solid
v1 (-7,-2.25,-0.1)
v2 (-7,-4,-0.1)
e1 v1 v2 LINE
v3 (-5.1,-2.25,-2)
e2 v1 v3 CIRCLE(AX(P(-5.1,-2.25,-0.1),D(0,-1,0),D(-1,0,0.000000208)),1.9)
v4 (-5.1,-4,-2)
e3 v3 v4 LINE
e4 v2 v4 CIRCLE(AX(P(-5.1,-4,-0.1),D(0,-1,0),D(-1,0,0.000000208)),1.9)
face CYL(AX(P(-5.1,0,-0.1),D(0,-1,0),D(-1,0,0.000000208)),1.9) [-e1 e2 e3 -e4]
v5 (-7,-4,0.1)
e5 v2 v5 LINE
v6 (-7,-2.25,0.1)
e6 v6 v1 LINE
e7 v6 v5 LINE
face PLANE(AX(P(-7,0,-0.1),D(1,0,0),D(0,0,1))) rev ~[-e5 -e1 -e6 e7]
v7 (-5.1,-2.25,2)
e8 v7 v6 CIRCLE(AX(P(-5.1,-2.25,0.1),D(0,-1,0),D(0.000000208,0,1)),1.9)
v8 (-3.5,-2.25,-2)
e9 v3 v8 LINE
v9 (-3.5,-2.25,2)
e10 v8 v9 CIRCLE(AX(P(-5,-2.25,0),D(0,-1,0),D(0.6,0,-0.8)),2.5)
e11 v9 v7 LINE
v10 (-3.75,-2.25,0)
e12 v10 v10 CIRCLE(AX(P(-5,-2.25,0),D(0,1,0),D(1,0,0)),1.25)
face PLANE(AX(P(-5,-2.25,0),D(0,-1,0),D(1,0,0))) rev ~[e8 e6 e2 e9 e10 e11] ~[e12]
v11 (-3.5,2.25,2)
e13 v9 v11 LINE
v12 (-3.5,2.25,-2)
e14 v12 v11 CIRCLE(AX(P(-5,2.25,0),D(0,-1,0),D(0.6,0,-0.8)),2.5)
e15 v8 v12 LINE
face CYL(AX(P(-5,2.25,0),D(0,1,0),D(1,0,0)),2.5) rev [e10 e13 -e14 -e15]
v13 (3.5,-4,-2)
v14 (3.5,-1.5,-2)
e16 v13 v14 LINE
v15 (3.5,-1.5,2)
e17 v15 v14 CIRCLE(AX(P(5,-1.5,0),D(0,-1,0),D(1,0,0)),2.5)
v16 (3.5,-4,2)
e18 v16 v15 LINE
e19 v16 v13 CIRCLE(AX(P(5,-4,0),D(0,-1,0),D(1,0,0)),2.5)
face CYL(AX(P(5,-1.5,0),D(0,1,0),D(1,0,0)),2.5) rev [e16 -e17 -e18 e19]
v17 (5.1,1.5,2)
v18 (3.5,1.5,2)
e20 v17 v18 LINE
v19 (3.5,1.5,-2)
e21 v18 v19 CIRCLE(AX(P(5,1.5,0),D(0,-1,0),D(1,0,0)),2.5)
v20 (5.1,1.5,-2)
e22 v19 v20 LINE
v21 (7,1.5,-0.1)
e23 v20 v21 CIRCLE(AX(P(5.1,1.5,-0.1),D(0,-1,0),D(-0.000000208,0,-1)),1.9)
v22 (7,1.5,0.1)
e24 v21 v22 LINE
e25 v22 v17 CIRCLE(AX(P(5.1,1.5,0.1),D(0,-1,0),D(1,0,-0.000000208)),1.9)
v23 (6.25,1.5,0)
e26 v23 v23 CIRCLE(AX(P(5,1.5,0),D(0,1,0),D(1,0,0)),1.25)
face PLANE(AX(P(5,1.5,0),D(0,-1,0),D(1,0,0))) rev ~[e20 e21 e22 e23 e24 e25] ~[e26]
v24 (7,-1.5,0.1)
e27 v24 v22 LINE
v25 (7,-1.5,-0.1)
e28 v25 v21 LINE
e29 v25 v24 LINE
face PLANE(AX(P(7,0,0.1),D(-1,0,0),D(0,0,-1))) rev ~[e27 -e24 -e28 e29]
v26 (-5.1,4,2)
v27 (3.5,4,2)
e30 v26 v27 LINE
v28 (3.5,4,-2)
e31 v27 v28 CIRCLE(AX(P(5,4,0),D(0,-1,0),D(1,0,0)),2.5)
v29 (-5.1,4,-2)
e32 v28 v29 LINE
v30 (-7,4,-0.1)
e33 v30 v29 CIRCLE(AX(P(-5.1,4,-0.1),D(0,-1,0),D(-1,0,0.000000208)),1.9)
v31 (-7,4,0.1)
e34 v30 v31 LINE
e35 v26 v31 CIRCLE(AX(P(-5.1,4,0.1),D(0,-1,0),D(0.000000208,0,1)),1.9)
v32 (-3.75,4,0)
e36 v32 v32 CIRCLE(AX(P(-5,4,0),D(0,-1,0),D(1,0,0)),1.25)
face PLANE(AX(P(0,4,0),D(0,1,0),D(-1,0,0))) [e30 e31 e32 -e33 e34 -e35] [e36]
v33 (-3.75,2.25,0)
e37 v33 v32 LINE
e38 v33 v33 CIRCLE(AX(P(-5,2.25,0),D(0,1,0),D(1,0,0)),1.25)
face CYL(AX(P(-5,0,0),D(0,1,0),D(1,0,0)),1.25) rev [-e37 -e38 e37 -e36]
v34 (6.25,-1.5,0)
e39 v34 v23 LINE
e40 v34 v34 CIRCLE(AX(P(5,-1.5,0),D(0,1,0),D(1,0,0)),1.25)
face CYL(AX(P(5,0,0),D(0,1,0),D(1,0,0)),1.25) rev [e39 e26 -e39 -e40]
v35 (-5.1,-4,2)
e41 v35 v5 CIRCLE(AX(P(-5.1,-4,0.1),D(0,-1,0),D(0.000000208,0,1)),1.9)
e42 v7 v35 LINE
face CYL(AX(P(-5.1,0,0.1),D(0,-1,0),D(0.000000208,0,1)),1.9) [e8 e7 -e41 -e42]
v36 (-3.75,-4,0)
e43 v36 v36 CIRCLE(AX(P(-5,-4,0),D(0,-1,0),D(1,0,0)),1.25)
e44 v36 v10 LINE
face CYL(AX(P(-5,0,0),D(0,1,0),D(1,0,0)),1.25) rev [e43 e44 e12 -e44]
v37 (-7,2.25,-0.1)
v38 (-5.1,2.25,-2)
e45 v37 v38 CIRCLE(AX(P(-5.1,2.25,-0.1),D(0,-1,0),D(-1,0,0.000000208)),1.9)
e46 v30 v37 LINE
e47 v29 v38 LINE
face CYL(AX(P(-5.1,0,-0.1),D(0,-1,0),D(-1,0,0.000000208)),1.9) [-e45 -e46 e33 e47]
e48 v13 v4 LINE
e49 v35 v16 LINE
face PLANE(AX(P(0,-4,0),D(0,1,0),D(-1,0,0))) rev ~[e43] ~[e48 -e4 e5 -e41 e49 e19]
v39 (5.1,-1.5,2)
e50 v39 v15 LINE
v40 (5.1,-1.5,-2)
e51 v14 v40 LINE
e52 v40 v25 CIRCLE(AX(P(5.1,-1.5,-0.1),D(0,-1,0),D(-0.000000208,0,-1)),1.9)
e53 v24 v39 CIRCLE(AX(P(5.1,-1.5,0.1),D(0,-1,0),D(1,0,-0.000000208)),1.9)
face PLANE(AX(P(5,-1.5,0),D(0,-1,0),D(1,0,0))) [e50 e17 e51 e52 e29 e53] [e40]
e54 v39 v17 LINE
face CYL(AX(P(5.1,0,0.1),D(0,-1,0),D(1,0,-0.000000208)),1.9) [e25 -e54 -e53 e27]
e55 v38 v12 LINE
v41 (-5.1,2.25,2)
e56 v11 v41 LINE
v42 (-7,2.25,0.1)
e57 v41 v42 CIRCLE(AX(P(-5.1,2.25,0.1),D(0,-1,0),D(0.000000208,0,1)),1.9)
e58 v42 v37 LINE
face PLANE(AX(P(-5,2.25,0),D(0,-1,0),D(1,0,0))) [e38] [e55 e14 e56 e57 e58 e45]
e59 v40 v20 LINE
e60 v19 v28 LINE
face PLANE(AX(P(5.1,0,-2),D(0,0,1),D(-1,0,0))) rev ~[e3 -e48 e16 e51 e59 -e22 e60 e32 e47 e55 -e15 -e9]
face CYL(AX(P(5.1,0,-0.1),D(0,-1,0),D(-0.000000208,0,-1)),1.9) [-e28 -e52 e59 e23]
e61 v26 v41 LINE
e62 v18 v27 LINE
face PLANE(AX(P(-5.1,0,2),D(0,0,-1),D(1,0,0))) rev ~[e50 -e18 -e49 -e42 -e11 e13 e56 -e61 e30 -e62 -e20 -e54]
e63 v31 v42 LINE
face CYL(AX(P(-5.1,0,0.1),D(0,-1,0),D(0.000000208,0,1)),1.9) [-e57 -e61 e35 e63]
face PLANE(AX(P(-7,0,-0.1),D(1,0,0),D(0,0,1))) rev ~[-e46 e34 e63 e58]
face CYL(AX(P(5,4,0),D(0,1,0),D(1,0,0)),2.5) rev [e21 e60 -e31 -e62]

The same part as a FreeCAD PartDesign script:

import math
import FreeCAD as App
import Part
import Sketcher
from FreeCAD import Vector

doc = App.newDocument("Part")
body = doc.addObject("PartDesign::Body", "Body")

# Sketch on XY plane
sketch1 = body.newObject("Sketcher::SketchObject", "Sketch")
sketch1.AttachmentSupport = (doc.getObject("XY_Plane"), [""])
sketch1.MapMode = "FlatFace"
sketch1.addGeometry(Part.Circle(Vector(0, 0, 0), Vector(0, 0, 1), 2.5), False)
sketch1.addConstraint(Sketcher.Constraint("Coincident", 0, 3, -1, 1))
sketch1.addConstraint(Sketcher.Constraint("Diameter", 0, 5.0))
pad1 = body.newObject("PartDesign::Pad", "Pad")
pad1.Profile = sketch1
pad1.Length = 2.5
body2 = doc.addObject("PartDesign::Body", "Body001")
doc.recompute()

body.Placement = App.Placement(Vector(0, 0, 0), App.Rotation(Vector(1, 0, 0), 90))
boolean = body2.newObject("PartDesign::Boolean", "Boolean")
boolean.Type = "Fuse"
boolean.addObjects([body])
body3 = doc.addObject("PartDesign::Body", "Body002")
doc.recompute()

body2.Placement = App.Placement(Vector(5, 4, 0), App.Rotation(Vector(0, 0, 1), 0))
boolean2 = body3.newObject("PartDesign::Boolean", "Boolean001")
boolean2.Type = "Fuse"
boolean2.addObjects([body2])
body4 = doc.addObject("PartDesign::Body", "Body003")

# Sketch on XY plane
sketch2 = body4.newObject("Sketcher::SketchObject", "Sketch001")
sketch2.AttachmentSupport = (doc.getObject("XY_Plane003"), [""])
sketch2.MapMode = "FlatFace"
sketch2.addGeometry(Part.Circle(Vector(0, 0, 0), Vector(0, 0, 1), 2.5), False)
sketch2.addConstraint(Sketcher.Constraint("Coincident", 0, 3, -1, 1))
sketch2.addConstraint(Sketcher.Constraint("Diameter", 0, 5.0))
pad2 = body4.newObject("PartDesign::Pad", "Pad001")
pad2.Profile = sketch2
pad2.Length = 2.5
body5 = doc.addObject("PartDesign::Body", "Body004")
doc.recompute()

body4.Placement = App.Placement(Vector(0, 0, 0), App.Rotation(Vector(1, 0, 0), 90))
boolean3 = body5.newObject("PartDesign::Boolean", "Boolean002")
boolean3.Type = "Fuse"
boolean3.addObjects([body4])
body6 = doc.addObject("PartDesign::Body", "Body005")
doc.recompute()

body5.Placement = App.Placement(Vector(5, -1.5, 0), App.Rotation(Vector(0, 0, 1), 0))
boolean4 = body6.newObject("PartDesign::Boolean", "Boolean003")
boolean4.Type = "Fuse"
boolean4.addObjects([body5])
body7 = doc.addObject("PartDesign::Body", "Body006")

# Sketch on XY plane
sketch3 = body7.newObject("Sketcher::SketchObject", "Sketch002")
sketch3.AttachmentSupport = (doc.getObject("XY_Plane006"), [""])
sketch3.MapMode = "FlatFace"
sketch3.addGeometry(Part.Circle(Vector(0, 0, 0), Vector(0, 0, 1), 2.5), False)
sketch3.addConstraint(Sketcher.Constraint("Coincident", 0, 3, -1, 1))
sketch3.addConstraint(Sketcher.Constraint("Diameter", 0, 5.0))
pad3 = body7.newObject("PartDesign::Pad", "Pad002")
pad3.Profile = sketch3
pad3.Length = 4.5
body8 = doc.addObject("PartDesign::Body", "Body007")
doc.recompute()

body7.Placement = App.Placement(Vector(0, 0, 0), App.Rotation(Vector(1, 0, 0), 90))
boolean5 = body8.newObject("PartDesign::Boolean", "Boolean004")
boolean5.Type = "Fuse"
boolean5.addObjects([body7])
body9 = doc.addObject("PartDesign::Body", "Body008")
body9.AllowCompound = True
doc.recompute()

body8.Placement = App.Placement(Vector(-5, 2.25, 0), App.Rotation(Vector(0, 0, 1), 0))
boolean6 = body9.newObject("PartDesign::Boolean", "Boolean005")
boolean6.Type = "Fuse"
boolean6.addObjects([body8])
doc.recompute()

boolean7 = body9.newObject("PartDesign::Boolean", "Boolean006")
boolean7.Type = "Fuse"
boolean7.addObjects([body3])
doc.recompute()

boolean8 = body9.newObject("PartDesign::Boolean", "Boolean007")
boolean8.Type = "Fuse"
boolean8.addObjects([body6])
body10 = doc.addObject("PartDesign::Body", "Body009")

# Sketch on XZ plane
sketch4 = body10.newObject("Sketcher::SketchObject", "Sketch003")
sketch4.AttachmentSupport = (doc.getObject("XZ_Plane009"), [""])
sketch4.MapMode = "FlatFace"
sketch4.addGeometry(Part.LineSegment(Vector(5.1, 2, 0), Vector(-5.1, 2, 0)), False)
sketch4.addGeometry(Part.ArcOfCircle(Part.Circle(Vector(-5.1, 0.1, 0), Vector(0, 0, 1), 1.9), math.radians(90), math.radians(180)), False)
sketch4.addGeometry(Part.LineSegment(Vector(-7, 0.1, 0), Vector(-7, -0.1, 0)), False)
sketch4.addGeometry(Part.ArcOfCircle(Part.Circle(Vector(-5.1, -0.1, 0), Vector(0, 0, 1), 1.9), math.radians(180), math.radians(270)), False)
sketch4.addGeometry(Part.LineSegment(Vector(-5.1, -2, 0), Vector(5.1, -2, 0)), False)
sketch4.addGeometry(Part.ArcOfCircle(Part.Circle(Vector(5.1, -0.1, 0), Vector(0, 0, 1), 1.9), math.radians(-90), math.radians(0)), False)
sketch4.addGeometry(Part.LineSegment(Vector(7, -0.1, 0), Vector(7, 0.1, 0)), False)
sketch4.addGeometry(Part.ArcOfCircle(Part.Circle(Vector(5.1, 0.1, 0), Vector(0, 0, 1), 1.9), math.radians(0), math.radians(90)), False)
sketch4.addGeometry(Part.Circle(Vector(5, 0, 0), Vector(0, 0, 1), 1.25), False)
sketch4.addGeometry(Part.Circle(Vector(-5, 0, 0), Vector(0, 0, 1), 1.25), False)
sketch4.addConstraint(Sketcher.Constraint("Tangent", 0, 2, 1, 1))
sketch4.addConstraint(Sketcher.Constraint("Tangent", 1, 2, 2, 1))
sketch4.addConstraint(Sketcher.Constraint("Tangent", 2, 2, 3, 1))
sketch4.addConstraint(Sketcher.Constraint("Tangent", 3, 2, 4, 1))
sketch4.addConstraint(Sketcher.Constraint("Tangent", 4, 2, 5, 1))
sketch4.addConstraint(Sketcher.Constraint("Tangent", 5, 2, 6, 1))
sketch4.addConstraint(Sketcher.Constraint("Tangent", 6, 2, 7, 1))
sketch4.addConstraint(Sketcher.Constraint("Tangent", 7, 2, 0, 1))
sketch4.addConstraint(Sketcher.Constraint("Horizontal", 0))
sketch4.addConstraint(Sketcher.Constraint("Vertical", 2))
sketch4.addConstraint(Sketcher.Constraint("Horizontal", 4))
sketch4.addConstraint(Sketcher.Constraint("Vertical", 6))
sketch4.addConstraint(Sketcher.Constraint("Equal", 1, 3))
sketch4.addConstraint(Sketcher.Constraint("Equal", 3, 5))
sketch4.addConstraint(Sketcher.Constraint("Equal", 5, 7))
sketch4.addConstraint(Sketcher.Constraint("Equal", 8, 9))
sketch4.addConstraint(Sketcher.Constraint("Symmetric", 1, 3, 5, 3, -1, 1))
sketch4.addConstraint(Sketcher.Constraint("Symmetric", 8, 3, 9, 3, -1, 1))
sketch4.addConstraint(Sketcher.Constraint("PointOnObject", 8, 3, -1))
sketch4.addConstraint(Sketcher.Constraint("Diameter", 8, 2.5))
sketch4.addConstraint(Sketcher.Constraint("Radius", 1, 1.9))
sketch4.addConstraint(Sketcher.Constraint("DistanceX", 0, 2, 0, 1, 10.2))
sketch4.addConstraint(Sketcher.Constraint("DistanceY", 2, 2, 2, 1, 0.2))
sketch4.addConstraint(Sketcher.Constraint("DistanceX", -1, 1, 8, 3, 5.0))
pad4 = body10.newObject("PartDesign::Pad", "Pad003")
pad4.Profile = sketch4
pad4.Length = 8
pad4.Midplane = True
doc.recompute()

boolean9 = body10.newObject("PartDesign::Boolean", "Boolean008")
boolean9.Type = "Cut"
boolean9.addObjects([body9])

doc.recompute()
